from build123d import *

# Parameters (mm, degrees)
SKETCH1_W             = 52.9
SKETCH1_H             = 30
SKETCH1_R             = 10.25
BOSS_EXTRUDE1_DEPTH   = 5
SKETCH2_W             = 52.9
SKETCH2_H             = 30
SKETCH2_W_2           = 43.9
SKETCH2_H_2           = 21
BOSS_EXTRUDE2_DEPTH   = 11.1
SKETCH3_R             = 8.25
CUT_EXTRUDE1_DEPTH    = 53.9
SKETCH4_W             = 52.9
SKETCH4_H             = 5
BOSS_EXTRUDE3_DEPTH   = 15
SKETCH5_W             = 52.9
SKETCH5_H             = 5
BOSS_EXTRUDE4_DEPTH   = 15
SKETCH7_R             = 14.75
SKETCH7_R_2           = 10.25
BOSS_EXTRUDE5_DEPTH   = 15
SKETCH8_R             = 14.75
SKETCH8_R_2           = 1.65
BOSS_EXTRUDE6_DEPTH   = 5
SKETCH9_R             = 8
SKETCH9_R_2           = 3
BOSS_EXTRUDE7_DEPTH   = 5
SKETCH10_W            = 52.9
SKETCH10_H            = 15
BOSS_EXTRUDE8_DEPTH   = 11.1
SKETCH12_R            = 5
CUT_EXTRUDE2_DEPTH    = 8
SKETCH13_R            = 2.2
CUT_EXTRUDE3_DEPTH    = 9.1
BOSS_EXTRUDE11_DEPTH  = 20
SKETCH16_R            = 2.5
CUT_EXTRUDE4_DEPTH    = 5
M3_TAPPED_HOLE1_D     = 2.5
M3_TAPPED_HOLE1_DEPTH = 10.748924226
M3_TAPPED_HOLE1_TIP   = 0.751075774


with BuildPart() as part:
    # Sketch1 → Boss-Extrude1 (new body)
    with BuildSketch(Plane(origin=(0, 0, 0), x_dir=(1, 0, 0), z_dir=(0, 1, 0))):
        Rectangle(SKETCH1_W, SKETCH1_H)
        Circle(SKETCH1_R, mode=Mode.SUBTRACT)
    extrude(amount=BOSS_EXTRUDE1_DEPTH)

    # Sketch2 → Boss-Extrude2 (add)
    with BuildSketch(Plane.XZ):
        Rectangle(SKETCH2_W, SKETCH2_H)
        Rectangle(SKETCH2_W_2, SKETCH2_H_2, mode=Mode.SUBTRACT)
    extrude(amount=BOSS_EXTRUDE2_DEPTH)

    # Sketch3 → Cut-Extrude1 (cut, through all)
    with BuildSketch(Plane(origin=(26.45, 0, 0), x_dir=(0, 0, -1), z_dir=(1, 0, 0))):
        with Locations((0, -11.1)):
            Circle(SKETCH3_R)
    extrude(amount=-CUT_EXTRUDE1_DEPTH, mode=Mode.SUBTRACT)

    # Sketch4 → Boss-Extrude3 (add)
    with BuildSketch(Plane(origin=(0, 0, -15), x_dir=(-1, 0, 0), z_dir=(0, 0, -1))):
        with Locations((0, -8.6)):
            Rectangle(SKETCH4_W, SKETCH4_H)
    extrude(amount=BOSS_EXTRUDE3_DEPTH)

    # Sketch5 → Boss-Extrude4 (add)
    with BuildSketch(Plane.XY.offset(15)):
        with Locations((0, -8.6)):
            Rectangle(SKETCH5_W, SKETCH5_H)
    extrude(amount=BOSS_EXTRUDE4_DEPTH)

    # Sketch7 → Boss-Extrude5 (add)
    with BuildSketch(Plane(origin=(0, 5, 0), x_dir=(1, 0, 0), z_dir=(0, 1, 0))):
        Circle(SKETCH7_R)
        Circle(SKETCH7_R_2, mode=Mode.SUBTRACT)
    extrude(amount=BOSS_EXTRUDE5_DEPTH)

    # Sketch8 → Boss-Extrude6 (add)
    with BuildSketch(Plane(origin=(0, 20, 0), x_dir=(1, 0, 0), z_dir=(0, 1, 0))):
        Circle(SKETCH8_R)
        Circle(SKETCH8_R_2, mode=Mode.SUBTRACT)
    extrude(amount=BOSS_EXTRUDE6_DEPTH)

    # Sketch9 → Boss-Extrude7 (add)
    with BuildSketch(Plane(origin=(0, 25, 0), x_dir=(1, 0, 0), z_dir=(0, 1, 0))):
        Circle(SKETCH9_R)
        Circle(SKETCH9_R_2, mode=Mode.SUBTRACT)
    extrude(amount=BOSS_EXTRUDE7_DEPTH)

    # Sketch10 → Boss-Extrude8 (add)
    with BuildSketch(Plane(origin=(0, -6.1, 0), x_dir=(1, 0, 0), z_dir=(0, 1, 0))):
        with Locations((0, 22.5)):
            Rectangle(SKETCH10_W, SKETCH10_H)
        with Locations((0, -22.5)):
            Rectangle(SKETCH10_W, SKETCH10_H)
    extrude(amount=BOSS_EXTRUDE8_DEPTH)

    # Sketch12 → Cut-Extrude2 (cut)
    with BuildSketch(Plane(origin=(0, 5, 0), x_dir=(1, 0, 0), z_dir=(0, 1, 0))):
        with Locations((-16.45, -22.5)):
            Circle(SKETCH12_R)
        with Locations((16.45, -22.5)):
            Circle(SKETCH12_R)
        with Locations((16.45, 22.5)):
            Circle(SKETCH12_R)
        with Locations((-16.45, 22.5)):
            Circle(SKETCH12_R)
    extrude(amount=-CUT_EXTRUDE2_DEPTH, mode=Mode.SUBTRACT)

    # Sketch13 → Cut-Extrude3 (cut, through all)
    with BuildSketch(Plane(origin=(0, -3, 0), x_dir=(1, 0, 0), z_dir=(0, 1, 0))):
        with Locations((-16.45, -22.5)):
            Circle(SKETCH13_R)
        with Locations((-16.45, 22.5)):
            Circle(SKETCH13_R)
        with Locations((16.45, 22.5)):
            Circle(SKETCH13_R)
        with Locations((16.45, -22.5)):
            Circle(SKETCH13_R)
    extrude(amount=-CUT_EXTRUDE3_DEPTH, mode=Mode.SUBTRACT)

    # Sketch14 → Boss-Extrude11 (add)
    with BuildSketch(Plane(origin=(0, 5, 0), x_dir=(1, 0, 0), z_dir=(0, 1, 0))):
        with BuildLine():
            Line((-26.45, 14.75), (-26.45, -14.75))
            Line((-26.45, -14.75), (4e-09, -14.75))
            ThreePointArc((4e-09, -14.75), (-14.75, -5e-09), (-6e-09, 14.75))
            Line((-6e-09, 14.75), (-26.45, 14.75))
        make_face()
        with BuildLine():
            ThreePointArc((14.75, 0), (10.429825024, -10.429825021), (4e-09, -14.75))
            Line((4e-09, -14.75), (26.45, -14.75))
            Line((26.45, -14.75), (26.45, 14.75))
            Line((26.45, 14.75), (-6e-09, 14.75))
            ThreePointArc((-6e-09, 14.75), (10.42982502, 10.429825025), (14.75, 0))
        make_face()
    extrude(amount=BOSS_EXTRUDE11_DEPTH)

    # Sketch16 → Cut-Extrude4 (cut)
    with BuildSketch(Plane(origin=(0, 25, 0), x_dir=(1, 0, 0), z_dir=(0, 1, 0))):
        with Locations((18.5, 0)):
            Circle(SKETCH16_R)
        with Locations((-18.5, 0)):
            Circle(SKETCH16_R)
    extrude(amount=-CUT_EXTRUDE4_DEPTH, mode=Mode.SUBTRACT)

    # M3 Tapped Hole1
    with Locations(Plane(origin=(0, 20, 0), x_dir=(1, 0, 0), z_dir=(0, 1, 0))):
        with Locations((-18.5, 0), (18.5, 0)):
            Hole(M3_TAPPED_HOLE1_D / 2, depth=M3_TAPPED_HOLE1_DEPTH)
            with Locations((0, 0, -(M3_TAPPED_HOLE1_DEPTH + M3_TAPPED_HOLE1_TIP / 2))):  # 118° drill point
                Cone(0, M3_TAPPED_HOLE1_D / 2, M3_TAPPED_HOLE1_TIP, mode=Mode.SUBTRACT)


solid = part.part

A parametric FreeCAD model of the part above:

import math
import FreeCAD as App
import Part
import Sketcher


def add_polygon(sketch, points):
    """Adds a closed chain of lines whose ends are joined by coincident constraints."""
    first, n = sketch.GeometryCount, len(points)
    for a, b in zip(points, points[1:] + points[:1]):
        sketch.addGeometry(Part.LineSegment(App.Vector(*a, 0), App.Vector(*b, 0)), False)
    for i in range(n):
        sketch.addConstraint(Sketcher.Constraint("Coincident", first + i, 2, first + (i + 1) % n, 1))

doc = App.newDocument("Part")
params = doc.addObject("Spreadsheet::Sheet", "Params")
for row, (alias, value) in enumerate([
    ("sketch1_diameter", "20.5 mm"),
    ("sketch1_height", "30 mm"),
    ("sketch1_width", "52.9 mm"),
    ("pad1_length", "5 mm"),
    ("sketch2_height", "30 mm"),
    ("sketch2_height2", "21 mm"),
    ("sketch2_width", "52.9 mm"),
    ("sketch2_width2", "43.9 mm"),
    ("pad2_length", "11.1 mm"),
    ("sketch3_diameter", "16.5 mm"),
    ("sketch4_height", "5 mm"),
    ("sketch4_width", "52.9 mm"),
    ("pad3_length", "15 mm"),
    ("sketch5_height", "5 mm"),
    ("sketch5_width", "52.9 mm"),
    ("pad4_length", "15 mm"),
    ("sketch6_diameter", "29.5 mm"),
    ("sketch6_diameter2", "20.5 mm"),
    ("pad5_length", "15 mm"),
    ("sketch7_diameter", "29.5 mm"),
    ("sketch7_diameter2", "3.3 mm"),
    ("pad6_length", "5 mm"),
    ("sketch8_diameter", "16 mm"),
    ("sketch8_diameter2", "6 mm"),
    ("pad7_length", "5 mm"),
    ("sketch9_height", "15 mm"),
    ("sketch9_width", "52.9 mm"),
    ("pad8_length", "11.1 mm"),
    ("sketch10_diameter", "10 mm"),
    ("pocket2_length", "8 mm"),
    ("sketch11_diameter", "4.4 mm"),
    ("sketch12_radius", "14.75 mm"),
    ("sketch12_width", "26.45 mm"),
    ("pad9_length", "20 mm"),
    ("sketch13_diameter", "5 mm"),
    ("pocket4_length", "5 mm"),
    ("sketch14_diameter", "2.5 mm"),
    ("hole_diameter", "2.5 mm"),
    ("hole_depth", "10.748924 mm"),
], start=1):
    params.set(f"A{row}", alias)
    params.set(f"B{row}", "=" + value)
    params.setAlias(f"B{row}", alias)

body = doc.addObject("PartDesign::Body", "Body")

sketch1 = body.newObject("Sketcher::SketchObject", "Sketch")
sketch1.AttachmentSupport = (doc.getObject("XZ_Plane"), [""])
sketch1.MapMode = "FlatFace"
add_polygon(sketch1, [(-26.45, -15), (-26.45, 15), (26.45, 15), (26.45, -15)])
sketch1.addGeometry(Part.Circle(App.Vector(0, 0, 0), App.Vector(0, 0, 1), 10.25), False)
sketch1.addConstraint(Sketcher.Constraint("Vertical", 0))
sketch1.addConstraint(Sketcher.Constraint("Horizontal", 1))
sketch1.addConstraint(Sketcher.Constraint("Vertical", 2))
sketch1.addConstraint(Sketcher.Constraint("Horizontal", 3))
sketch1.addConstraint(Sketcher.Constraint("Coincident", 4, 3, -1, 1))
sketch1.addConstraint(Sketcher.Constraint("Symmetric", 0, 2, 2, 2, -1, 1))
sketch1.addConstraint(Sketcher.Constraint("Diameter", 4, 20.5))
sketch1.addConstraint(Sketcher.Constraint("DistanceY", 0, 1, 0, 2, 30.0))
sketch1.addConstraint(Sketcher.Constraint("DistanceX", 1, 1, 1, 2, 52.9))
sketch1.setExpression("Constraints[10]", "Params.sketch1_diameter")
sketch1.setExpression("Constraints[11]", "Params.sketch1_height")
sketch1.setExpression("Constraints[12]", "Params.sketch1_width")
pad1 = body.newObject("PartDesign::Pad", "Pad")
pad1.Profile = sketch1
pad1.setExpression("Length", "Params.pad1_length")
pad1.Reversed = True

sketch2 = body.newObject("Sketcher::SketchObject", "Sketch001")
sketch2.AttachmentSupport = (doc.getObject("XZ_Plane"), [""])
sketch2.MapMode = "FlatFace"
add_polygon(sketch2, [(-26.45, 15), (-26.45, -15), (26.45, -15), (26.45, 15)])
add_polygon(sketch2, [(21.95, -10.5), (-21.95, -10.5), (-21.95, 10.5), (21.95, 10.5)])
sketch2.addConstraint(Sketcher.Constraint("Vertical", 0))
sketch2.addConstraint(Sketcher.Constraint("Horizontal", 1))
sketch2.addConstraint(Sketcher.Constraint("Vertical", 2))
sketch2.addConstraint(Sketcher.Constraint("Horizontal", 3))
sketch2.addConstraint(Sketcher.Constraint("Horizontal", 4))
sketch2.addConstraint(Sketcher.Constraint("Vertical", 5))
sketch2.addConstraint(Sketcher.Constraint("Horizontal", 6))
sketch2.addConstraint(Sketcher.Constraint("Vertical", 7))
sketch2.addConstraint(Sketcher.Constraint("Symmetric", 0, 2, 2, 2, -1, 1))
sketch2.addConstraint(Sketcher.Constraint("Symmetric", 4, 2, 6, 2, -1, 1))
sketch2.addConstraint(Sketcher.Constraint("DistanceY", 0, 2, 0, 1, 30.0))
sketch2.addConstraint(Sketcher.Constraint("DistanceY", 5, 1, 5, 2, 21.0))
sketch2.addConstraint(Sketcher.Constraint("DistanceX", 1, 1, 1, 2, 52.9))
sketch2.addConstraint(Sketcher.Constraint("DistanceX", 4, 2, 4, 1, 43.9))
sketch2.setExpression("Constraints[18]", "Params.sketch2_height")
sketch2.setExpression("Constraints[19]", "Params.sketch2_height2")
sketch2.setExpression("Constraints[20]", "Params.sketch2_width")
sketch2.setExpression("Constraints[21]", "Params.sketch2_width2")
pad2 = body.newObject("PartDesign::Pad", "Pad001")
pad2.Profile = sketch2
pad2.setExpression("Length", "Params.pad2_length")

sketch3 = body.newObject("Sketcher::SketchObject", "Sketch002")
sketch3.AttachmentSupport = (doc.getObject("YZ_Plane"), [""])
sketch3.MapMode = "FlatFace"
sketch3.AttachmentOffset = App.Placement(App.Vector(0, 0, 26.45), App.Rotation())
sketch3.addGeometry(Part.Circle(App.Vector(-11.1, 0, 0), App.Vector(0, 0, 1), 8.25), False)
sketch3.addConstraint(Sketcher.Constraint("PointOnObject", 0, 3, -1))
sketch3.addConstraint(Sketcher.Constraint("Diameter", 0, 16.5))
sketch3.addConstraint(Sketcher.Constraint("DistanceX", 0, 3, -1, 1, 11.1))
sketch3.setExpression("Constraints[1]", "Params.sketch3_diameter")
pocket1 = body.newObject("PartDesign::Pocket", "Pocket")
pocket1.Profile = sketch3
pocket1.Type = "ThroughAll"

sketch4 = body.newObject("Sketcher::SketchObject", "Sketch003")
sketch4.AttachmentSupport = (doc.getObject("XY_Plane"), [""])
sketch4.MapMode = "FlatFace"
sketch4.AttachmentOffset = App.Placement(App.Vector(0, 0, -15), App.Rotation())
add_polygon(sketch4, [(26.45, -6.1), (26.45, -11.1), (-26.45, -11.1), (-26.45, -6.1)])
sketch4.addConstraint(Sketcher.Constraint("Vertical", 0))
sketch4.addConstraint(Sketcher.Constraint("Horizontal", 1))
sketch4.addConstraint(Sketcher.Constraint("Vertical", 2))
sketch4.addConstraint(Sketcher.Constraint("Horizontal", 3))
sketch4.addConstraint(Sketcher.Constraint("DistanceY", 0, 2, 0, 1, 5.0))
sketch4.addConstraint(Sketcher.Constraint("DistanceX", 1, 2, 1, 1, 52.9))
sketch4.addConstraint(Sketcher.Constraint("DistanceY", 0, 2, -1, 1, 11.1))
sketch4.addConstraint(Sketcher.Constraint("DistanceX", -1, 1, 0, 2, 26.45))
sketch4.setExpression("Constraints[8]", "Params.sketch4_height")
sketch4.setExpression("Constraints[9]", "Params.sketch4_width")
pad3 = body.newObject("PartDesign::Pad", "Pad002")
pad3.Profile = sketch4
pad3.setExpression("Length", "Params.pad3_length")
pad3.Reversed = True

sketch5 = body.newObject("Sketcher::SketchObject", "Sketch004")
sketch5.AttachmentSupport = (doc.getObject("XY_Plane"), [""])
sketch5.MapMode = "FlatFace"
sketch5.AttachmentOffset = App.Placement(App.Vector(0, 0, 15), App.Rotation())
add_polygon(sketch5, [(-26.45, -6.1), (-26.45, -11.1), (26.45, -11.1), (26.45, -6.1)])
sketch5.addConstraint(Sketcher.Constraint("Vertical", 0))
sketch5.addConstraint(Sketcher.Constraint("Horizontal", 1))
sketch5.addConstraint(Sketcher.Constraint("Vertical", 2))
sketch5.addConstraint(Sketcher.Constraint("Horizontal", 3))
sketch5.addConstraint(Sketcher.Constraint("DistanceY", 0, 2, 0, 1, 5.0))
sketch5.addConstraint(Sketcher.Constraint("DistanceX", 1, 1, 1, 2, 52.9))
sketch5.addConstraint(Sketcher.Constraint("DistanceY", 0, 2, -1, 1, 11.1))
sketch5.addConstraint(Sketcher.Constraint("DistanceX", 0, 2, -1, 1, 26.45))
sketch5.setExpression("Constraints[8]", "Params.sketch5_height")
sketch5.setExpression("Constraints[9]", "Params.sketch5_width")
pad4 = body.newObject("PartDesign::Pad", "Pad003")
pad4.Profile = sketch5
pad4.setExpression("Length", "Params.pad4_length")

sketch6 = body.newObject("Sketcher::SketchObject", "Sketch005")
sketch6.AttachmentSupport = (doc.getObject("XZ_Plane"), [""])
sketch6.MapMode = "FlatFace"
sketch6.AttachmentOffset = App.Placement(App.Vector(0, 0, -5), App.Rotation())
sketch6.addGeometry(Part.Circle(App.Vector(0, 0, 0), App.Vector(0, 0, 1), 14.75), False)
sketch6.addGeometry(Part.Circle(App.Vector(0, 0, 0), App.Vector(0, 0, 1), 10.25), False)
sketch6.addConstraint(Sketcher.Constraint("Coincident", 0, 3, -1, 1))
sketch6.addConstraint(Sketcher.Constraint("Coincident", 1, 3, -1, 1))
sketch6.addConstraint(Sketcher.Constraint("Diameter", 0, 29.5))
sketch6.addConstraint(Sketcher.Constraint("Diameter", 1, 20.5))
sketch6.setExpression("Constraints[2]", "Params.sketch6_diameter")
sketch6.setExpression("Constraints[3]", "Params.sketch6_diameter2")
pad5 = body.newObject("PartDesign::Pad", "Pad004")
pad5.Profile = sketch6
pad5.setExpression("Length", "Params.pad5_length")
pad5.Reversed = True

sketch7 = body.newObject("Sketcher::SketchObject", "Sketch006")
sketch7.AttachmentSupport = (doc.getObject("XZ_Plane"), [""])
sketch7.MapMode = "FlatFace"
sketch7.AttachmentOffset = App.Placement(App.Vector(0, 0, -20), App.Rotation())
sketch7.addGeometry(Part.Circle(App.Vector(0, 0, 0), App.Vector(0, 0, 1), 14.75), False)
sketch7.addGeometry(Part.Circle(App.Vector(0, 0, 0), App.Vector(0, 0, 1), 1.65), False)
sketch7.addConstraint(Sketcher.Constraint("Coincident", 0, 3, -1, 1))
sketch7.addConstraint(Sketcher.Constraint("Coincident", 1, 3, -1, 1))
sketch7.addConstraint(Sketcher.Constraint("Diameter", 0, 29.5))
sketch7.addConstraint(Sketcher.Constraint("Diameter", 1, 3.3))
sketch7.setExpression("Constraints[2]", "Params.sketch7_diameter")
sketch7.setExpression("Constraints[3]", "Params.sketch7_diameter2")
pad6 = body.newObject("PartDesign::Pad", "Pad005")
pad6.Profile = sketch7
pad6.setExpression("Length", "Params.pad6_length")
pad6.Reversed = True

sketch8 = body.newObject("Sketcher::SketchObject", "Sketch007")
sketch8.AttachmentSupport = (doc.getObject("XZ_Plane"), [""])
sketch8.MapMode = "FlatFace"
sketch8.AttachmentOffset = App.Placement(App.Vector(0, 0, -25), App.Rotation())
sketch8.addGeometry(Part.Circle(App.Vector(0, 0, 0), App.Vector(0, 0, 1), 8), False)
sketch8.addGeometry(Part.Circle(App.Vector(0, 0, 0), App.Vector(0, 0, 1), 3), False)
sketch8.addConstraint(Sketcher.Constraint("Coincident", 0, 3, -1, 1))
sketch8.addConstraint(Sketcher.Constraint("Coincident", 1, 3, -1, 1))
sketch8.addConstraint(Sketcher.Constraint("Diameter", 0, 16.0))
sketch8.addConstraint(Sketcher.Constraint("Diameter", 1, 6.0))
sketch8.setExpression("Constraints[2]", "Params.sketch8_diameter")
sketch8.setExpression("Constraints[3]", "Params.sketch8_diameter2")
pad7 = body.newObject("PartDesign::Pad", "Pad006")
pad7.Profile = sketch8
pad7.setExpression("Length", "Params.pad7_length")
pad7.Reversed = True

sketch9 = body.newObject("Sketcher::SketchObject", "Sketch008")
sketch9.AttachmentSupport = (doc.getObject("XZ_Plane"), [""])
sketch9.MapMode = "FlatFace"
sketch9.AttachmentOffset = App.Placement(App.Vector(0, 0, 6.1), App.Rotation())
add_polygon(sketch9, [(-26.45, -30), (-26.45, -15), (26.45, -15), (26.45, -30)])
add_polygon(sketch9, [(-26.45, 15), (-26.45, 30), (26.45, 30), (26.45, 15)])
sketch9.addConstraint(Sketcher.Constraint("Vertical", 0))
sketch9.addConstraint(Sketcher.Constraint("Horizontal", 1))
sketch9.addConstraint(Sketcher.Constraint("Vertical", 2))
sketch9.addConstraint(Sketcher.Constraint("Horizontal", 3))
sketch9.addConstraint(Sketcher.Constraint("Vertical", 4))
sketch9.addConstraint(Sketcher.Constraint("Horizontal", 5))
sketch9.addConstraint(Sketcher.Constraint("Vertical", 6))
sketch9.addConstraint(Sketcher.Constraint("Horizontal", 7))
sketch9.addConstraint(Sketcher.Constraint("Symmetric", 2, 2, 4, 2, -1, 1))
sketch9.addConstraint(Sketcher.Constraint("Symmetric", 0, 2, 6, 2, -1, 1))
sketch9.addConstraint(Sketcher.Constraint("Vertical", 3, 2, 4, 2))
sketch9.addConstraint(Sketcher.Constraint("DistanceY", 0, 1, 0, 2, 15.0))
sketch9.addConstraint(Sketcher.Constraint("DistanceX", 1, 1, 1, 2, 52.9))
sketch9.addConstraint(Sketcher.Constraint("DistanceY", 0, 2, -1, 1, 15.0))
sketch9.setExpression("Constraints[19]", "Params.sketch9_height")
sketch9.setExpression("Constraints[20]", "Params.sketch9_width")
pad8 = body.newObject("PartDesign::Pad", "Pad007")
pad8.Profile = sketch9
pad8.setExpression("Length", "Params.pad8_length")
pad8.Reversed = True

sketch10 = body.newObject("Sketcher::SketchObject", "Sketch009")
sketch10.AttachmentSupport = (doc.getObject("XZ_Plane"), [""])
sketch10.MapMode = "FlatFace"
sketch10.AttachmentOffset = App.Placement(App.Vector(0, 0, -5), App.Rotation())
sketch10.addGeometry(Part.Circle(App.Vector(-16.45, 22.5, 0), App.Vector(0, 0, 1), 5), False)
sketch10.addGeometry(Part.Circle(App.Vector(16.45, 22.5, 0), App.Vector(0, 0, 1), 5), False)
sketch10.addGeometry(Part.Circle(App.Vector(16.45, -22.5, 0), App.Vector(0, 0, 1), 5), False)
sketch10.addGeometry(Part.Circle(App.Vector(-16.45, -22.5, 0), App.Vector(0, 0, 1), 5), False)
sketch10.addConstraint(Sketcher.Constraint("Equal", 0, 1))
sketch10.addConstraint(Sketcher.Constraint("Equal", 1, 2))
sketch10.addConstraint(Sketcher.Constraint("Equal", 2, 3))
sketch10.addConstraint(Sketcher.Constraint("Symmetric", 0, 3, 2, 3, -1, 1))
sketch10.addConstraint(Sketcher.Constraint("Symmetric", 1, 3, 3, 3, -1, 1))
sketch10.addConstraint(Sketcher.Constraint("Symmetric", 0, 3, 1, 3, -2))
sketch10.addConstraint(Sketcher.Constraint("Diameter", 0, 10.0))
sketch10.addConstraint(Sketcher.Constraint("DistanceY", 2, 3, 1, 3, 45.0))
sketch10.addConstraint(Sketcher.Constraint("DistanceX", 0, 3, 1, 3, 32.9))
sketch10.setExpression("Constraints[6]", "Params.sketch10_diameter")
pocket2 = body.newObject("PartDesign::Pocket", "Pocket001")
pocket2.Profile = sketch10
pocket2.setExpression("Length", "Params.pocket2_length")
pocket2.Reversed = True

sketch11 = body.newObject("Sketcher::SketchObject", "Sketch010")
sketch11.AttachmentSupport = (doc.getObject("XZ_Plane"), [""])
sketch11.MapMode = "FlatFace"
sketch11.AttachmentOffset = App.Placement(App.Vector(0, 0, 3), App.Rotation())
sketch11.addGeometry(Part.Circle(App.Vector(-16.45, 22.5, 0), App.Vector(0, 0, 1), 2.2), False)
sketch11.addGeometry(Part.Circle(App.Vector(-16.45, -22.5, 0), App.Vector(0, 0, 1), 2.2), False)
sketch11.addGeometry(Part.Circle(App.Vector(16.45, -22.5, 0), App.Vector(0, 0, 1), 2.2), False)
sketch11.addGeometry(Part.Circle(App.Vector(16.45, 22.5, 0), App.Vector(0, 0, 1), 2.2), False)
sketch11.addConstraint(Sketcher.Constraint("Equal", 0, 1))
sketch11.addConstraint(Sketcher.Constraint("Equal", 1, 2))
sketch11.addConstraint(Sketcher.Constraint("Equal", 2, 3))
sketch11.addConstraint(Sketcher.Constraint("Symmetric", 0, 3, 2, 3, -1, 1))
sketch11.addConstraint(Sketcher.Constraint("Symmetric", 1, 3, 3, 3, -1, 1))
sketch11.addConstraint(Sketcher.Constraint("Symmetric", 1, 3, 2, 3, -2))
sketch11.addConstraint(Sketcher.Constraint("Diameter", 0, 4.4))
sketch11.addConstraint(Sketcher.Constraint("DistanceY", 1, 3, 0, 3, 45.0))
sketch11.addConstraint(Sketcher.Constraint("DistanceX", 1, 3, 2, 3, 32.9))
sketch11.setExpression("Constraints[6]", "Params.sketch11_diameter")
pocket3 = body.newObject("PartDesign::Pocket", "Pocket002")
pocket3.Profile = sketch11
pocket3.Type = "ThroughAll"
pocket3.Reversed = True

sketch12 = body.newObject("Sketcher::SketchObject", "Sketch011")
sketch12.AttachmentSupport = (doc.getObject("XZ_Plane"), [""])
sketch12.MapMode = "FlatFace"
sketch12.AttachmentOffset = App.Placement(App.Vector(0, 0, -5), App.Rotation())
sketch12.addGeometry(Part.LineSegment(App.Vector(-26.45, -14.75, 0), App.Vector(-26.45, 14.75, 0)), False)
sketch12.addGeometry(Part.LineSegment(App.Vector(-26.45, 14.75, 0), App.Vector(0, 14.75, 0)), False)
sketch12.addGeometry(Part.ArcOfCircle(Part.Circle(App.Vector(0, 0, 0), App.Vector(0, 0, 1), 14.75), math.radians(90), math.radians(270)), False)
sketch12.addGeometry(Part.LineSegment(App.Vector(0, -14.75, 0), App.Vector(-26.45, -14.75, 0)), False)
sketch12.addGeometry(Part.LineSegment(App.Vector(0, 14.75, 0), App.Vector(26.45, 14.75, 0)), False)
sketch12.addGeometry(Part.LineSegment(App.Vector(26.45, 14.75, 0), App.Vector(26.45, -14.75, 0)), False)
sketch12.addGeometry(Part.LineSegment(App.Vector(26.45, -14.75, 0), App.Vector(0, -14.75, 0)), False)
sketch12.addGeometry(Part.ArcOfCircle(Part.Circle(App.Vector(0, 0, 0), App.Vector(0, 0, 1), 14.75), math.radians(-90), math.radians(90)), False)
sketch12.addConstraint(Sketcher.Constraint("Coincident", 0, 2, 1, 1))
sketch12.addConstraint(Sketcher.Constraint("Tangent", 1, 2, 2, 1))
sketch12.addConstraint(Sketcher.Constraint("Tangent", 2, 2, 3, 1))
sketch12.addConstraint(Sketcher.Constraint("Coincident", 3, 2, 0, 1))
sketch12.addConstraint(Sketcher.Constraint("Coincident", 4, 2, 5, 1))
sketch12.addConstraint(Sketcher.Constraint("Coincident", 5, 2, 6, 1))
sketch12.addConstraint(Sketcher.Constraint("Tangent", 6, 2, 7, 1))
sketch12.addConstraint(Sketcher.Constraint("Tangent", 7, 2, 4, 1))
sketch12.addConstraint(Sketcher.Constraint("Vertical", 0))
sketch12.addConstraint(Sketcher.Constraint("Horizontal", 1))
sketch12.addConstraint(Sketcher.Constraint("Horizontal", 3))
sketch12.addConstraint(Sketcher.Constraint("Horizontal", 4))
sketch12.addConstraint(Sketcher.Constraint("Vertical", 5))
sketch12.addConstraint(Sketcher.Constraint("Horizontal", 6))
sketch12.addConstraint(Sketcher.Constraint("Coincident", 2, 3, -1, 1))
sketch12.addConstraint(Sketcher.Constraint("Coincident", 7, 3, -1, 1))
sketch12.addConstraint(Sketcher.Constraint("Equal", 2, 7))
sketch12.addConstraint(Sketcher.Constraint("Equal", 3, 4))
sketch12.addConstraint(Sketcher.Constraint("Radius", 2, 14.75))
sketch12.addConstraint(Sketcher.Constraint("DistanceX", 1, 1, 1, 2, 26.45))
sketch12.setExpression("Constraints[18]", "Params.sketch12_radius")
sketch12.setExpression("Constraints[19]", "Params.sketch12_width")
pad9 = body.newObject("PartDesign::Pad", "Pad008")
pad9.Profile = sketch12
pad9.setExpression("Length", "Params.pad9_length")
pad9.Reversed = True

sketch13 = body.newObject("Sketcher::SketchObject", "Sketch012")
sketch13.AttachmentSupport = (doc.getObject("XZ_Plane"), [""])
sketch13.MapMode = "FlatFace"
sketch13.AttachmentOffset = App.Placement(App.Vector(0, 0, -25), App.Rotation())
sketch13.addGeometry(Part.Circle(App.Vector(18.5, 0, 0), App.Vector(0, 0, 1), 2.5), False)
sketch13.addGeometry(Part.Circle(App.Vector(-18.5, 0, 0), App.Vector(0, 0, 1), 2.5), False)
sketch13.addConstraint(Sketcher.Constraint("Equal", 0, 1))
sketch13.addConstraint(Sketcher.Constraint("Symmetric", 0, 3, 1, 3, -1, 1))
sketch13.addConstraint(Sketcher.Constraint("PointOnObject", 0, 3, -1))
sketch13.addConstraint(Sketcher.Constraint("Diameter", 0, 5.0))
sketch13.addConstraint(Sketcher.Constraint("DistanceX", 1, 3, 0, 3, 37.0))
sketch13.setExpression("Constraints[3]", "Params.sketch13_diameter")
pocket4 = body.newObject("PartDesign::Pocket", "Pocket003")
pocket4.Profile = sketch13
pocket4.setExpression("Length", "Params.pocket4_length")
pocket4.Reversed = True

sketch14 = body.newObject("Sketcher::SketchObject", "Sketch013")
sketch14.AttachmentSupport = (doc.getObject("XZ_Plane"), [""])
sketch14.MapMode = "FlatFace"
sketch14.AttachmentOffset = App.Placement(App.Vector(0, 0, -20), App.Rotation())
sketch14.addGeometry(Part.Circle(App.Vector(-18.5, 0, 0), App.Vector(0, 0, 1), 1.25), False)
sketch14.addGeometry(Part.Circle(App.Vector(18.5, 0, 0), App.Vector(0, 0, 1), 1.25), False)
sketch14.addConstraint(Sketcher.Constraint("Equal", 0, 1))
sketch14.addConstraint(Sketcher.Constraint("Symmetric", 0, 3, 1, 3, -1, 1))
sketch14.addConstraint(Sketcher.Constraint("PointOnObject", 0, 3, -1))
sketch14.addConstraint(Sketcher.Constraint("Diameter", 0, 2.5))
sketch14.addConstraint(Sketcher.Constraint("DistanceX", 0, 3, 1, 3, 37.0))
sketch14.setExpression("Constraints[3]", "Params.sketch14_diameter")
doc.recompute()
hole = body.newObject("PartDesign::Hole", "Hole")
hole.Profile = sketch14
hole.ThreadType = "None"
hole.setExpression("Diameter", "Params.hole_diameter")
hole.DepthType = "Dimension"
hole.setExpression("Depth", "Params.hole_depth")
hole.DrillPoint = "Angled"
hole.DrillPointAngle = 118
hole.Reversed = True

doc.recompute()
